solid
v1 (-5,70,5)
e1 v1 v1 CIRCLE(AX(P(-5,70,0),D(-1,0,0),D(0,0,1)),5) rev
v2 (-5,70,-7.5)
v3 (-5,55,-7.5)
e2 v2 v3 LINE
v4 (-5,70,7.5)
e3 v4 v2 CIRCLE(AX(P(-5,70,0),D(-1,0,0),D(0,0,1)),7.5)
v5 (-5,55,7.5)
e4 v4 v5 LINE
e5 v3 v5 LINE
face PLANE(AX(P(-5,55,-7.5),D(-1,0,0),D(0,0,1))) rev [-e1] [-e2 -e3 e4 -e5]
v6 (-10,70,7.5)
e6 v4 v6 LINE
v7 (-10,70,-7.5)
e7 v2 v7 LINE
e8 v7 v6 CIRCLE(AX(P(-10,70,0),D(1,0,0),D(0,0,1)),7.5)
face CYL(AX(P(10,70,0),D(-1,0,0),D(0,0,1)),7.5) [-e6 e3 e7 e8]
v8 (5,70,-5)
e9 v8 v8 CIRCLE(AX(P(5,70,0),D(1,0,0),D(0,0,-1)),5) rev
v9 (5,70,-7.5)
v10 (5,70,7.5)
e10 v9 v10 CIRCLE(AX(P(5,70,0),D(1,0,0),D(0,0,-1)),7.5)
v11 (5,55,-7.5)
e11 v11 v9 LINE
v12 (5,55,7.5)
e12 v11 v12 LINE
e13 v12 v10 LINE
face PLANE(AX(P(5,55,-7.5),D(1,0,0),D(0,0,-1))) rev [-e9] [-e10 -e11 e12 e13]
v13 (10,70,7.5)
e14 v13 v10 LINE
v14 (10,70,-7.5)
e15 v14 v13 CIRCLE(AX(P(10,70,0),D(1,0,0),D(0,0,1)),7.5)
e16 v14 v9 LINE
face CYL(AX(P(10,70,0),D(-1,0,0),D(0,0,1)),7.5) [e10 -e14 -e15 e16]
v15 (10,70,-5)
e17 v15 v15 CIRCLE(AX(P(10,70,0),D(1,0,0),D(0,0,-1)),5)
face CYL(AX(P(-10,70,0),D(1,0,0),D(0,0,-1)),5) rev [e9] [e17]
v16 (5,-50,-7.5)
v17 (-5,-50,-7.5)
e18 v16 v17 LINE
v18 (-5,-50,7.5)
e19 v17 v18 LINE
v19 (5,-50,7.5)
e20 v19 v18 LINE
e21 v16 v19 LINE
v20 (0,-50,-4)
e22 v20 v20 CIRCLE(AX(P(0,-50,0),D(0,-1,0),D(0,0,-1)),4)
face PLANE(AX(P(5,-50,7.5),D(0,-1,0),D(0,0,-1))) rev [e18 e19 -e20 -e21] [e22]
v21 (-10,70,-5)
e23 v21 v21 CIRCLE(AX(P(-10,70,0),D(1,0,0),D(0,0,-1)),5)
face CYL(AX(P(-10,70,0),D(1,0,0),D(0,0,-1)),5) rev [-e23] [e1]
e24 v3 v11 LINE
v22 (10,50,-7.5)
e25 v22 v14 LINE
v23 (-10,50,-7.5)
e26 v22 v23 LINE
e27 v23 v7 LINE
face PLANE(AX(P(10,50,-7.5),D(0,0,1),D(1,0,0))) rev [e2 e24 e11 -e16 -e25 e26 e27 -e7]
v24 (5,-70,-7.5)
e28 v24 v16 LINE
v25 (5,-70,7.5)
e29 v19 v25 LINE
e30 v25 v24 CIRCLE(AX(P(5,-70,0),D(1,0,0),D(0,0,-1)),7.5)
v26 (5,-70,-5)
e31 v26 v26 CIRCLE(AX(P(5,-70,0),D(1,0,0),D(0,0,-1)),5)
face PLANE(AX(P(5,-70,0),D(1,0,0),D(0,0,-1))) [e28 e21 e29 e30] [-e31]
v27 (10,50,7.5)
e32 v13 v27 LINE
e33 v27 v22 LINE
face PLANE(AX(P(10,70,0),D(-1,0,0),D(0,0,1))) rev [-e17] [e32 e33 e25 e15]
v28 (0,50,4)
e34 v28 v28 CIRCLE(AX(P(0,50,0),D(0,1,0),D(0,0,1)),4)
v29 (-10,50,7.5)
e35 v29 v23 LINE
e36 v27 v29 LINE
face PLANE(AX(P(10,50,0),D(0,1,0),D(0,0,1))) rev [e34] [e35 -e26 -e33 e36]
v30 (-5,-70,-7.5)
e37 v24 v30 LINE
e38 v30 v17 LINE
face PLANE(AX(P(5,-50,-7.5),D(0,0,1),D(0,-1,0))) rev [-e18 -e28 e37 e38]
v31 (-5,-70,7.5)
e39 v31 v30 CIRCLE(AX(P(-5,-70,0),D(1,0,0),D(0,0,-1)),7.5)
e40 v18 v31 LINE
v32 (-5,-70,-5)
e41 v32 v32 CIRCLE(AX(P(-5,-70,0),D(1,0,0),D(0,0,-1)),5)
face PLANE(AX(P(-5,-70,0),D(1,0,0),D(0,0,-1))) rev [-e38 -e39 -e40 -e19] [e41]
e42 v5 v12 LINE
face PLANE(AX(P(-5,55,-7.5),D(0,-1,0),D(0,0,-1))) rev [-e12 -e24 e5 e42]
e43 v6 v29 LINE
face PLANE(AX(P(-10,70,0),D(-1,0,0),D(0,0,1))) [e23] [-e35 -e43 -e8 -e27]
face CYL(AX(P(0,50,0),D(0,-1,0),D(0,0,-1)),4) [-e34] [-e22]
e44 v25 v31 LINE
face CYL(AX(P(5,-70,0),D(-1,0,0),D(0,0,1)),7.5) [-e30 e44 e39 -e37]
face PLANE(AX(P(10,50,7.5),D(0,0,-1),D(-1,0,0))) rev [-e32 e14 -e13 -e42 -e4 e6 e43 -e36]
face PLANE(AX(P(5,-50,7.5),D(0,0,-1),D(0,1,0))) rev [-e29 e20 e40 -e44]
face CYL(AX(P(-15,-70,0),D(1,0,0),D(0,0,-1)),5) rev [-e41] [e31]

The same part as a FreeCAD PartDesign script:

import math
import FreeCAD as App
import Part
import Sketcher

V = App.Vector
Q = App.Units.Quantity


def add_polygon(sketch, points):
    """Adds a closed chain of lines whose ends are joined by coincident constraints."""
    first, n = sketch.GeometryCount, len(points)
    for a, b in zip(points, points[1:] + points[:1]):
        sketch.addGeometry(Part.LineSegment(App.Vector(*a, 0), App.Vector(*b, 0)), False)
    for i in range(n):
        sketch.addConstraint(Sketcher.Constraint("Coincident", first + i, 2, first + (i + 1) % n, 1))

doc = App.newDocument("Part")
params = doc.addObject("Spreadsheet::Sheet", "Params")
for row, (alias, value) in enumerate([
    ("sketch1_diameter", "8 mm"),
    ("pad1_length", "100 mm"),
    ("sketch2_radius", "7.5 mm"),
    ("sketch2_width", "20 mm"),
    ("pad2_length", "20 mm"),
    ("sketch3_diameter", "10 mm"),
    ("sketch4_width", "10 mm"),
    ("sketch4_height", "22.5 mm"),
    ("sketch5_radius", "7.5 mm"),
    ("sketch5_width", "20 mm"),
    ("pad3_length", "10 mm"),
    ("sketch6_diameter", "10 mm"),
    ("pocket3_length", "20 mm"),
], start=1):
    params.set(f"A{row}", alias)
    params.set(f"B{row}", "=" + value)
    params.setAlias(f"B{row}", alias)

body = doc.addObject("PartDesign::Body", "Body")

sketch1 = body.newObject("Sketcher::SketchObject", "Sketch")
sketch1.AttachmentSupport = (doc.getObject("XZ_Plane"), [""])
sketch1.MapMode = "FlatFace"
sketch1.addGeometry(Part.Circle(V(0, 0, 0), V(0, 0, 1), 4), False)
sketch1.addConstraint(Sketcher.Constraint("Coincident", 0, 3, -1, 1))
sketch1.addConstraint(Sketcher.Constraint("Diameter", 0, Q("8 mm")))
sketch1.setExpression("Constraints[1]", "Params.sketch1_diameter")
pad1 = body.newObject("PartDesign::Pad", "Pad")
pad1.Profile = sketch1
pad1.setExpression("Length", "Params.pad1_length")
pad1.Midplane = True

sketch2 = body.newObject("Sketcher::SketchObject", "Sketch001")
sketch2.AttachmentSupport = (doc.getObject("YZ_Plane"), [""])
sketch2.MapMode = "FlatFace"
sketch2.addGeometry(Part.LineSegment(V(50, -8, 0), V(70, -8, 0)), False)
sketch2.addGeometry(Part.ArcOfCircle(Part.Circle(V(70, 0, 0), V(0, 0, 1), 8), math.radians(-90), math.radians(90)), False)
sketch2.addGeometry(Part.LineSegment(V(70, 8, 0), V(50, 8, 0)), False)
sketch2.addGeometry(Part.LineSegment(V(50, 8, 0), V(50, -8, 0)), False)
sketch2.addConstraint(Sketcher.Constraint("Tangent", 0, 2, 1, 1))
sketch2.addConstraint(Sketcher.Constraint("Tangent", 1, 2, 2, 1))
sketch2.addConstraint(Sketcher.Constraint("Coincident", 2, 2, 3, 1))
sketch2.addConstraint(Sketcher.Constraint("Coincident", 3, 2, 0, 1))
sketch2.addConstraint(Sketcher.Constraint("Horizontal", 0))
sketch2.addConstraint(Sketcher.Constraint("Horizontal", 2))
sketch2.addConstraint(Sketcher.Constraint("Vertical", 3))
sketch2.addConstraint(Sketcher.Constraint("PointOnObject", 1, 3, -1))
sketch2.addConstraint(Sketcher.Constraint("Radius", 1, Q("7.5 mm")))
sketch2.addConstraint(Sketcher.Constraint("DistanceX", 0, 1, 0, 2, Q("20 mm")))
sketch2.addConstraint(Sketcher.Constraint("DistanceX", -1, 1, 1, 3, Q("70 mm")))
sketch2.setExpression("Constraints[8]", "Params.sketch2_radius")
sketch2.setExpression("Constraints[9]", "Params.sketch2_width")
pad2 = body.newObject("PartDesign::Pad", "Pad001")
pad2.Profile = sketch2
pad2.setExpression("Length", "Params.pad2_length")
pad2.Midplane = True

sketch3 = body.newObject("Sketcher::SketchObject", "Sketch002")
sketch3.AttachmentSupport = (doc.getObject("YZ_Plane"), [""])
sketch3.MapMode = "FlatFace"
sketch3.AttachmentOffset = App.Placement(V(0, 0, 10), App.Rotation())
sketch3.addGeometry(Part.Circle(V(70, 0, 0), V(0, 0, 1), 5), False)
sketch3.addConstraint(Sketcher.Constraint("PointOnObject", 0, 3, -1))
sketch3.addConstraint(Sketcher.Constraint("Diameter", 0, Q("10 mm")))
sketch3.addConstraint(Sketcher.Constraint("DistanceX", -1, 1, 0, 3, Q("70 mm")))
sketch3.setExpression("Constraints[1]", "Params.sketch3_diameter")
pocket1 = body.newObject("PartDesign::Pocket", "Pocket")
pocket1.Profile = sketch3
pocket1.Type = "ThroughAll"

sketch4 = body.newObject("Sketcher::SketchObject", "Sketch003")
sketch4.AttachmentSupport = (doc.getObject("XY_Plane"), [""])
sketch4.MapMode = "FlatFace"
sketch4.AttachmentOffset = App.Placement(V(0, 0, 7.5), App.Rotation())
add_polygon(sketch4, [(-5, 78), (-5, 55), (5, 55), (5, 78)])
sketch4.addConstraint(Sketcher.Constraint("Vertical", 0))
sketch4.addConstraint(Sketcher.Constraint("Horizontal", 1))
sketch4.addConstraint(Sketcher.Constraint("Vertical", 2))
sketch4.addConstraint(Sketcher.Constraint("Horizontal", 3))
sketch4.addConstraint(Sketcher.Constraint("DistanceX", 1, 1, 1, 2, Q("10 mm")))
sketch4.addConstraint(Sketcher.Constraint("DistanceY", 0, 2, 0, 1, Q("22.5 mm")))
sketch4.addConstraint(Sketcher.Constraint("DistanceX", 0, 2, -1, 1, Q("5 mm")))
sketch4.addConstraint(Sketcher.Constraint("DistanceY", -1, 1, 0, 2, Q("55 mm")))
sketch4.setExpression("Constraints[8]", "Params.sketch4_width")
sketch4.setExpression("Constraints[9]", "Params.sketch4_height")
pocket2 = body.newObject("PartDesign::Pocket", "Pocket001")
pocket2.Profile = sketch4
pocket2.Type = "ThroughAll"

sketch5 = body.newObject("Sketcher::SketchObject", "Sketch004")
sketch5.AttachmentSupport = (doc.getObject("YZ_Plane"), [""])
sketch5.MapMode = "FlatFace"
sketch5.addGeometry(Part.LineSegment(V(-50, -8, 0), V(-50, 8, 0)), False)
sketch5.addGeometry(Part.LineSegment(V(-50, 8, 0), V(-70, 8, 0)), False)
sketch5.addGeometry(Part.ArcOfCircle(Part.Circle(V(-70, 0, 0), V(0, 0, 1), 8), math.radians(90), math.radians(270)), False)
sketch5.addGeometry(Part.LineSegment(V(-70, -8, 0), V(-50, -8, 0)), False)
sketch5.addConstraint(Sketcher.Constraint("Coincident", 0, 2, 1, 1))
sketch5.addConstraint(Sketcher.Constraint("Tangent", 1, 2, 2, 1))
sketch5.addConstraint(Sketcher.Constraint("Tangent", 2, 2, 3, 1))
sketch5.addConstraint(Sketcher.Constraint("Coincident", 3, 2, 0, 1))
sketch5.addConstraint(Sketcher.Constraint("Vertical", 0))
sketch5.addConstraint(Sketcher.Constraint("Horizontal", 1))
sketch5.addConstraint(Sketcher.Constraint("Horizontal", 3))
sketch5.addConstraint(Sketcher.Constraint("PointOnObject", 2, 3, -1))
sketch5.addConstraint(Sketcher.Constraint("Radius", 2, Q("7.5 mm")))
sketch5.addConstraint(Sketcher.Constraint("DistanceX", 1, 2, 1, 1, Q("20 mm")))
sketch5.addConstraint(Sketcher.Constraint("DistanceX", 2, 3, -1, 1, Q("70 mm")))
sketch5.setExpression("Constraints[8]", "Params.sketch5_radius")
sketch5.setExpression("Constraints[9]", "Params.sketch5_width")
pad3 = body.newObject("PartDesign::Pad", "Pad002")
pad3.Profile = sketch5
pad3.setExpression("Length", "Params.pad3_length")
pad3.Midplane = True

sketch6 = body.newObject("Sketcher::SketchObject", "Sketch005")
sketch6.AttachmentSupport = (doc.getObject("YZ_Plane"), [""])
sketch6.MapMode = "FlatFace"
sketch6.AttachmentOffset = App.Placement(V(0, 0, 5), App.Rotation())
sketch6.addGeometry(Part.Circle(V(-70, 0, 0), V(0, 0, 1), 5), False)
sketch6.addConstraint(Sketcher.Constraint("PointOnObject", 0, 3, -1))
sketch6.addConstraint(Sketcher.Constraint("Diameter", 0, Q("10 mm")))
sketch6.addConstraint(Sketcher.Constraint("DistanceX", 0, 3, -1, 1, Q("70 mm")))
sketch6.setExpression("Constraints[1]", "Params.sketch6_diameter")
pocket3 = body.newObject("PartDesign::Pocket", "Pocket002")
pocket3.Profile = sketch6
pocket3.setExpression("Length", "Params.pocket3_length")

doc.recompute()
